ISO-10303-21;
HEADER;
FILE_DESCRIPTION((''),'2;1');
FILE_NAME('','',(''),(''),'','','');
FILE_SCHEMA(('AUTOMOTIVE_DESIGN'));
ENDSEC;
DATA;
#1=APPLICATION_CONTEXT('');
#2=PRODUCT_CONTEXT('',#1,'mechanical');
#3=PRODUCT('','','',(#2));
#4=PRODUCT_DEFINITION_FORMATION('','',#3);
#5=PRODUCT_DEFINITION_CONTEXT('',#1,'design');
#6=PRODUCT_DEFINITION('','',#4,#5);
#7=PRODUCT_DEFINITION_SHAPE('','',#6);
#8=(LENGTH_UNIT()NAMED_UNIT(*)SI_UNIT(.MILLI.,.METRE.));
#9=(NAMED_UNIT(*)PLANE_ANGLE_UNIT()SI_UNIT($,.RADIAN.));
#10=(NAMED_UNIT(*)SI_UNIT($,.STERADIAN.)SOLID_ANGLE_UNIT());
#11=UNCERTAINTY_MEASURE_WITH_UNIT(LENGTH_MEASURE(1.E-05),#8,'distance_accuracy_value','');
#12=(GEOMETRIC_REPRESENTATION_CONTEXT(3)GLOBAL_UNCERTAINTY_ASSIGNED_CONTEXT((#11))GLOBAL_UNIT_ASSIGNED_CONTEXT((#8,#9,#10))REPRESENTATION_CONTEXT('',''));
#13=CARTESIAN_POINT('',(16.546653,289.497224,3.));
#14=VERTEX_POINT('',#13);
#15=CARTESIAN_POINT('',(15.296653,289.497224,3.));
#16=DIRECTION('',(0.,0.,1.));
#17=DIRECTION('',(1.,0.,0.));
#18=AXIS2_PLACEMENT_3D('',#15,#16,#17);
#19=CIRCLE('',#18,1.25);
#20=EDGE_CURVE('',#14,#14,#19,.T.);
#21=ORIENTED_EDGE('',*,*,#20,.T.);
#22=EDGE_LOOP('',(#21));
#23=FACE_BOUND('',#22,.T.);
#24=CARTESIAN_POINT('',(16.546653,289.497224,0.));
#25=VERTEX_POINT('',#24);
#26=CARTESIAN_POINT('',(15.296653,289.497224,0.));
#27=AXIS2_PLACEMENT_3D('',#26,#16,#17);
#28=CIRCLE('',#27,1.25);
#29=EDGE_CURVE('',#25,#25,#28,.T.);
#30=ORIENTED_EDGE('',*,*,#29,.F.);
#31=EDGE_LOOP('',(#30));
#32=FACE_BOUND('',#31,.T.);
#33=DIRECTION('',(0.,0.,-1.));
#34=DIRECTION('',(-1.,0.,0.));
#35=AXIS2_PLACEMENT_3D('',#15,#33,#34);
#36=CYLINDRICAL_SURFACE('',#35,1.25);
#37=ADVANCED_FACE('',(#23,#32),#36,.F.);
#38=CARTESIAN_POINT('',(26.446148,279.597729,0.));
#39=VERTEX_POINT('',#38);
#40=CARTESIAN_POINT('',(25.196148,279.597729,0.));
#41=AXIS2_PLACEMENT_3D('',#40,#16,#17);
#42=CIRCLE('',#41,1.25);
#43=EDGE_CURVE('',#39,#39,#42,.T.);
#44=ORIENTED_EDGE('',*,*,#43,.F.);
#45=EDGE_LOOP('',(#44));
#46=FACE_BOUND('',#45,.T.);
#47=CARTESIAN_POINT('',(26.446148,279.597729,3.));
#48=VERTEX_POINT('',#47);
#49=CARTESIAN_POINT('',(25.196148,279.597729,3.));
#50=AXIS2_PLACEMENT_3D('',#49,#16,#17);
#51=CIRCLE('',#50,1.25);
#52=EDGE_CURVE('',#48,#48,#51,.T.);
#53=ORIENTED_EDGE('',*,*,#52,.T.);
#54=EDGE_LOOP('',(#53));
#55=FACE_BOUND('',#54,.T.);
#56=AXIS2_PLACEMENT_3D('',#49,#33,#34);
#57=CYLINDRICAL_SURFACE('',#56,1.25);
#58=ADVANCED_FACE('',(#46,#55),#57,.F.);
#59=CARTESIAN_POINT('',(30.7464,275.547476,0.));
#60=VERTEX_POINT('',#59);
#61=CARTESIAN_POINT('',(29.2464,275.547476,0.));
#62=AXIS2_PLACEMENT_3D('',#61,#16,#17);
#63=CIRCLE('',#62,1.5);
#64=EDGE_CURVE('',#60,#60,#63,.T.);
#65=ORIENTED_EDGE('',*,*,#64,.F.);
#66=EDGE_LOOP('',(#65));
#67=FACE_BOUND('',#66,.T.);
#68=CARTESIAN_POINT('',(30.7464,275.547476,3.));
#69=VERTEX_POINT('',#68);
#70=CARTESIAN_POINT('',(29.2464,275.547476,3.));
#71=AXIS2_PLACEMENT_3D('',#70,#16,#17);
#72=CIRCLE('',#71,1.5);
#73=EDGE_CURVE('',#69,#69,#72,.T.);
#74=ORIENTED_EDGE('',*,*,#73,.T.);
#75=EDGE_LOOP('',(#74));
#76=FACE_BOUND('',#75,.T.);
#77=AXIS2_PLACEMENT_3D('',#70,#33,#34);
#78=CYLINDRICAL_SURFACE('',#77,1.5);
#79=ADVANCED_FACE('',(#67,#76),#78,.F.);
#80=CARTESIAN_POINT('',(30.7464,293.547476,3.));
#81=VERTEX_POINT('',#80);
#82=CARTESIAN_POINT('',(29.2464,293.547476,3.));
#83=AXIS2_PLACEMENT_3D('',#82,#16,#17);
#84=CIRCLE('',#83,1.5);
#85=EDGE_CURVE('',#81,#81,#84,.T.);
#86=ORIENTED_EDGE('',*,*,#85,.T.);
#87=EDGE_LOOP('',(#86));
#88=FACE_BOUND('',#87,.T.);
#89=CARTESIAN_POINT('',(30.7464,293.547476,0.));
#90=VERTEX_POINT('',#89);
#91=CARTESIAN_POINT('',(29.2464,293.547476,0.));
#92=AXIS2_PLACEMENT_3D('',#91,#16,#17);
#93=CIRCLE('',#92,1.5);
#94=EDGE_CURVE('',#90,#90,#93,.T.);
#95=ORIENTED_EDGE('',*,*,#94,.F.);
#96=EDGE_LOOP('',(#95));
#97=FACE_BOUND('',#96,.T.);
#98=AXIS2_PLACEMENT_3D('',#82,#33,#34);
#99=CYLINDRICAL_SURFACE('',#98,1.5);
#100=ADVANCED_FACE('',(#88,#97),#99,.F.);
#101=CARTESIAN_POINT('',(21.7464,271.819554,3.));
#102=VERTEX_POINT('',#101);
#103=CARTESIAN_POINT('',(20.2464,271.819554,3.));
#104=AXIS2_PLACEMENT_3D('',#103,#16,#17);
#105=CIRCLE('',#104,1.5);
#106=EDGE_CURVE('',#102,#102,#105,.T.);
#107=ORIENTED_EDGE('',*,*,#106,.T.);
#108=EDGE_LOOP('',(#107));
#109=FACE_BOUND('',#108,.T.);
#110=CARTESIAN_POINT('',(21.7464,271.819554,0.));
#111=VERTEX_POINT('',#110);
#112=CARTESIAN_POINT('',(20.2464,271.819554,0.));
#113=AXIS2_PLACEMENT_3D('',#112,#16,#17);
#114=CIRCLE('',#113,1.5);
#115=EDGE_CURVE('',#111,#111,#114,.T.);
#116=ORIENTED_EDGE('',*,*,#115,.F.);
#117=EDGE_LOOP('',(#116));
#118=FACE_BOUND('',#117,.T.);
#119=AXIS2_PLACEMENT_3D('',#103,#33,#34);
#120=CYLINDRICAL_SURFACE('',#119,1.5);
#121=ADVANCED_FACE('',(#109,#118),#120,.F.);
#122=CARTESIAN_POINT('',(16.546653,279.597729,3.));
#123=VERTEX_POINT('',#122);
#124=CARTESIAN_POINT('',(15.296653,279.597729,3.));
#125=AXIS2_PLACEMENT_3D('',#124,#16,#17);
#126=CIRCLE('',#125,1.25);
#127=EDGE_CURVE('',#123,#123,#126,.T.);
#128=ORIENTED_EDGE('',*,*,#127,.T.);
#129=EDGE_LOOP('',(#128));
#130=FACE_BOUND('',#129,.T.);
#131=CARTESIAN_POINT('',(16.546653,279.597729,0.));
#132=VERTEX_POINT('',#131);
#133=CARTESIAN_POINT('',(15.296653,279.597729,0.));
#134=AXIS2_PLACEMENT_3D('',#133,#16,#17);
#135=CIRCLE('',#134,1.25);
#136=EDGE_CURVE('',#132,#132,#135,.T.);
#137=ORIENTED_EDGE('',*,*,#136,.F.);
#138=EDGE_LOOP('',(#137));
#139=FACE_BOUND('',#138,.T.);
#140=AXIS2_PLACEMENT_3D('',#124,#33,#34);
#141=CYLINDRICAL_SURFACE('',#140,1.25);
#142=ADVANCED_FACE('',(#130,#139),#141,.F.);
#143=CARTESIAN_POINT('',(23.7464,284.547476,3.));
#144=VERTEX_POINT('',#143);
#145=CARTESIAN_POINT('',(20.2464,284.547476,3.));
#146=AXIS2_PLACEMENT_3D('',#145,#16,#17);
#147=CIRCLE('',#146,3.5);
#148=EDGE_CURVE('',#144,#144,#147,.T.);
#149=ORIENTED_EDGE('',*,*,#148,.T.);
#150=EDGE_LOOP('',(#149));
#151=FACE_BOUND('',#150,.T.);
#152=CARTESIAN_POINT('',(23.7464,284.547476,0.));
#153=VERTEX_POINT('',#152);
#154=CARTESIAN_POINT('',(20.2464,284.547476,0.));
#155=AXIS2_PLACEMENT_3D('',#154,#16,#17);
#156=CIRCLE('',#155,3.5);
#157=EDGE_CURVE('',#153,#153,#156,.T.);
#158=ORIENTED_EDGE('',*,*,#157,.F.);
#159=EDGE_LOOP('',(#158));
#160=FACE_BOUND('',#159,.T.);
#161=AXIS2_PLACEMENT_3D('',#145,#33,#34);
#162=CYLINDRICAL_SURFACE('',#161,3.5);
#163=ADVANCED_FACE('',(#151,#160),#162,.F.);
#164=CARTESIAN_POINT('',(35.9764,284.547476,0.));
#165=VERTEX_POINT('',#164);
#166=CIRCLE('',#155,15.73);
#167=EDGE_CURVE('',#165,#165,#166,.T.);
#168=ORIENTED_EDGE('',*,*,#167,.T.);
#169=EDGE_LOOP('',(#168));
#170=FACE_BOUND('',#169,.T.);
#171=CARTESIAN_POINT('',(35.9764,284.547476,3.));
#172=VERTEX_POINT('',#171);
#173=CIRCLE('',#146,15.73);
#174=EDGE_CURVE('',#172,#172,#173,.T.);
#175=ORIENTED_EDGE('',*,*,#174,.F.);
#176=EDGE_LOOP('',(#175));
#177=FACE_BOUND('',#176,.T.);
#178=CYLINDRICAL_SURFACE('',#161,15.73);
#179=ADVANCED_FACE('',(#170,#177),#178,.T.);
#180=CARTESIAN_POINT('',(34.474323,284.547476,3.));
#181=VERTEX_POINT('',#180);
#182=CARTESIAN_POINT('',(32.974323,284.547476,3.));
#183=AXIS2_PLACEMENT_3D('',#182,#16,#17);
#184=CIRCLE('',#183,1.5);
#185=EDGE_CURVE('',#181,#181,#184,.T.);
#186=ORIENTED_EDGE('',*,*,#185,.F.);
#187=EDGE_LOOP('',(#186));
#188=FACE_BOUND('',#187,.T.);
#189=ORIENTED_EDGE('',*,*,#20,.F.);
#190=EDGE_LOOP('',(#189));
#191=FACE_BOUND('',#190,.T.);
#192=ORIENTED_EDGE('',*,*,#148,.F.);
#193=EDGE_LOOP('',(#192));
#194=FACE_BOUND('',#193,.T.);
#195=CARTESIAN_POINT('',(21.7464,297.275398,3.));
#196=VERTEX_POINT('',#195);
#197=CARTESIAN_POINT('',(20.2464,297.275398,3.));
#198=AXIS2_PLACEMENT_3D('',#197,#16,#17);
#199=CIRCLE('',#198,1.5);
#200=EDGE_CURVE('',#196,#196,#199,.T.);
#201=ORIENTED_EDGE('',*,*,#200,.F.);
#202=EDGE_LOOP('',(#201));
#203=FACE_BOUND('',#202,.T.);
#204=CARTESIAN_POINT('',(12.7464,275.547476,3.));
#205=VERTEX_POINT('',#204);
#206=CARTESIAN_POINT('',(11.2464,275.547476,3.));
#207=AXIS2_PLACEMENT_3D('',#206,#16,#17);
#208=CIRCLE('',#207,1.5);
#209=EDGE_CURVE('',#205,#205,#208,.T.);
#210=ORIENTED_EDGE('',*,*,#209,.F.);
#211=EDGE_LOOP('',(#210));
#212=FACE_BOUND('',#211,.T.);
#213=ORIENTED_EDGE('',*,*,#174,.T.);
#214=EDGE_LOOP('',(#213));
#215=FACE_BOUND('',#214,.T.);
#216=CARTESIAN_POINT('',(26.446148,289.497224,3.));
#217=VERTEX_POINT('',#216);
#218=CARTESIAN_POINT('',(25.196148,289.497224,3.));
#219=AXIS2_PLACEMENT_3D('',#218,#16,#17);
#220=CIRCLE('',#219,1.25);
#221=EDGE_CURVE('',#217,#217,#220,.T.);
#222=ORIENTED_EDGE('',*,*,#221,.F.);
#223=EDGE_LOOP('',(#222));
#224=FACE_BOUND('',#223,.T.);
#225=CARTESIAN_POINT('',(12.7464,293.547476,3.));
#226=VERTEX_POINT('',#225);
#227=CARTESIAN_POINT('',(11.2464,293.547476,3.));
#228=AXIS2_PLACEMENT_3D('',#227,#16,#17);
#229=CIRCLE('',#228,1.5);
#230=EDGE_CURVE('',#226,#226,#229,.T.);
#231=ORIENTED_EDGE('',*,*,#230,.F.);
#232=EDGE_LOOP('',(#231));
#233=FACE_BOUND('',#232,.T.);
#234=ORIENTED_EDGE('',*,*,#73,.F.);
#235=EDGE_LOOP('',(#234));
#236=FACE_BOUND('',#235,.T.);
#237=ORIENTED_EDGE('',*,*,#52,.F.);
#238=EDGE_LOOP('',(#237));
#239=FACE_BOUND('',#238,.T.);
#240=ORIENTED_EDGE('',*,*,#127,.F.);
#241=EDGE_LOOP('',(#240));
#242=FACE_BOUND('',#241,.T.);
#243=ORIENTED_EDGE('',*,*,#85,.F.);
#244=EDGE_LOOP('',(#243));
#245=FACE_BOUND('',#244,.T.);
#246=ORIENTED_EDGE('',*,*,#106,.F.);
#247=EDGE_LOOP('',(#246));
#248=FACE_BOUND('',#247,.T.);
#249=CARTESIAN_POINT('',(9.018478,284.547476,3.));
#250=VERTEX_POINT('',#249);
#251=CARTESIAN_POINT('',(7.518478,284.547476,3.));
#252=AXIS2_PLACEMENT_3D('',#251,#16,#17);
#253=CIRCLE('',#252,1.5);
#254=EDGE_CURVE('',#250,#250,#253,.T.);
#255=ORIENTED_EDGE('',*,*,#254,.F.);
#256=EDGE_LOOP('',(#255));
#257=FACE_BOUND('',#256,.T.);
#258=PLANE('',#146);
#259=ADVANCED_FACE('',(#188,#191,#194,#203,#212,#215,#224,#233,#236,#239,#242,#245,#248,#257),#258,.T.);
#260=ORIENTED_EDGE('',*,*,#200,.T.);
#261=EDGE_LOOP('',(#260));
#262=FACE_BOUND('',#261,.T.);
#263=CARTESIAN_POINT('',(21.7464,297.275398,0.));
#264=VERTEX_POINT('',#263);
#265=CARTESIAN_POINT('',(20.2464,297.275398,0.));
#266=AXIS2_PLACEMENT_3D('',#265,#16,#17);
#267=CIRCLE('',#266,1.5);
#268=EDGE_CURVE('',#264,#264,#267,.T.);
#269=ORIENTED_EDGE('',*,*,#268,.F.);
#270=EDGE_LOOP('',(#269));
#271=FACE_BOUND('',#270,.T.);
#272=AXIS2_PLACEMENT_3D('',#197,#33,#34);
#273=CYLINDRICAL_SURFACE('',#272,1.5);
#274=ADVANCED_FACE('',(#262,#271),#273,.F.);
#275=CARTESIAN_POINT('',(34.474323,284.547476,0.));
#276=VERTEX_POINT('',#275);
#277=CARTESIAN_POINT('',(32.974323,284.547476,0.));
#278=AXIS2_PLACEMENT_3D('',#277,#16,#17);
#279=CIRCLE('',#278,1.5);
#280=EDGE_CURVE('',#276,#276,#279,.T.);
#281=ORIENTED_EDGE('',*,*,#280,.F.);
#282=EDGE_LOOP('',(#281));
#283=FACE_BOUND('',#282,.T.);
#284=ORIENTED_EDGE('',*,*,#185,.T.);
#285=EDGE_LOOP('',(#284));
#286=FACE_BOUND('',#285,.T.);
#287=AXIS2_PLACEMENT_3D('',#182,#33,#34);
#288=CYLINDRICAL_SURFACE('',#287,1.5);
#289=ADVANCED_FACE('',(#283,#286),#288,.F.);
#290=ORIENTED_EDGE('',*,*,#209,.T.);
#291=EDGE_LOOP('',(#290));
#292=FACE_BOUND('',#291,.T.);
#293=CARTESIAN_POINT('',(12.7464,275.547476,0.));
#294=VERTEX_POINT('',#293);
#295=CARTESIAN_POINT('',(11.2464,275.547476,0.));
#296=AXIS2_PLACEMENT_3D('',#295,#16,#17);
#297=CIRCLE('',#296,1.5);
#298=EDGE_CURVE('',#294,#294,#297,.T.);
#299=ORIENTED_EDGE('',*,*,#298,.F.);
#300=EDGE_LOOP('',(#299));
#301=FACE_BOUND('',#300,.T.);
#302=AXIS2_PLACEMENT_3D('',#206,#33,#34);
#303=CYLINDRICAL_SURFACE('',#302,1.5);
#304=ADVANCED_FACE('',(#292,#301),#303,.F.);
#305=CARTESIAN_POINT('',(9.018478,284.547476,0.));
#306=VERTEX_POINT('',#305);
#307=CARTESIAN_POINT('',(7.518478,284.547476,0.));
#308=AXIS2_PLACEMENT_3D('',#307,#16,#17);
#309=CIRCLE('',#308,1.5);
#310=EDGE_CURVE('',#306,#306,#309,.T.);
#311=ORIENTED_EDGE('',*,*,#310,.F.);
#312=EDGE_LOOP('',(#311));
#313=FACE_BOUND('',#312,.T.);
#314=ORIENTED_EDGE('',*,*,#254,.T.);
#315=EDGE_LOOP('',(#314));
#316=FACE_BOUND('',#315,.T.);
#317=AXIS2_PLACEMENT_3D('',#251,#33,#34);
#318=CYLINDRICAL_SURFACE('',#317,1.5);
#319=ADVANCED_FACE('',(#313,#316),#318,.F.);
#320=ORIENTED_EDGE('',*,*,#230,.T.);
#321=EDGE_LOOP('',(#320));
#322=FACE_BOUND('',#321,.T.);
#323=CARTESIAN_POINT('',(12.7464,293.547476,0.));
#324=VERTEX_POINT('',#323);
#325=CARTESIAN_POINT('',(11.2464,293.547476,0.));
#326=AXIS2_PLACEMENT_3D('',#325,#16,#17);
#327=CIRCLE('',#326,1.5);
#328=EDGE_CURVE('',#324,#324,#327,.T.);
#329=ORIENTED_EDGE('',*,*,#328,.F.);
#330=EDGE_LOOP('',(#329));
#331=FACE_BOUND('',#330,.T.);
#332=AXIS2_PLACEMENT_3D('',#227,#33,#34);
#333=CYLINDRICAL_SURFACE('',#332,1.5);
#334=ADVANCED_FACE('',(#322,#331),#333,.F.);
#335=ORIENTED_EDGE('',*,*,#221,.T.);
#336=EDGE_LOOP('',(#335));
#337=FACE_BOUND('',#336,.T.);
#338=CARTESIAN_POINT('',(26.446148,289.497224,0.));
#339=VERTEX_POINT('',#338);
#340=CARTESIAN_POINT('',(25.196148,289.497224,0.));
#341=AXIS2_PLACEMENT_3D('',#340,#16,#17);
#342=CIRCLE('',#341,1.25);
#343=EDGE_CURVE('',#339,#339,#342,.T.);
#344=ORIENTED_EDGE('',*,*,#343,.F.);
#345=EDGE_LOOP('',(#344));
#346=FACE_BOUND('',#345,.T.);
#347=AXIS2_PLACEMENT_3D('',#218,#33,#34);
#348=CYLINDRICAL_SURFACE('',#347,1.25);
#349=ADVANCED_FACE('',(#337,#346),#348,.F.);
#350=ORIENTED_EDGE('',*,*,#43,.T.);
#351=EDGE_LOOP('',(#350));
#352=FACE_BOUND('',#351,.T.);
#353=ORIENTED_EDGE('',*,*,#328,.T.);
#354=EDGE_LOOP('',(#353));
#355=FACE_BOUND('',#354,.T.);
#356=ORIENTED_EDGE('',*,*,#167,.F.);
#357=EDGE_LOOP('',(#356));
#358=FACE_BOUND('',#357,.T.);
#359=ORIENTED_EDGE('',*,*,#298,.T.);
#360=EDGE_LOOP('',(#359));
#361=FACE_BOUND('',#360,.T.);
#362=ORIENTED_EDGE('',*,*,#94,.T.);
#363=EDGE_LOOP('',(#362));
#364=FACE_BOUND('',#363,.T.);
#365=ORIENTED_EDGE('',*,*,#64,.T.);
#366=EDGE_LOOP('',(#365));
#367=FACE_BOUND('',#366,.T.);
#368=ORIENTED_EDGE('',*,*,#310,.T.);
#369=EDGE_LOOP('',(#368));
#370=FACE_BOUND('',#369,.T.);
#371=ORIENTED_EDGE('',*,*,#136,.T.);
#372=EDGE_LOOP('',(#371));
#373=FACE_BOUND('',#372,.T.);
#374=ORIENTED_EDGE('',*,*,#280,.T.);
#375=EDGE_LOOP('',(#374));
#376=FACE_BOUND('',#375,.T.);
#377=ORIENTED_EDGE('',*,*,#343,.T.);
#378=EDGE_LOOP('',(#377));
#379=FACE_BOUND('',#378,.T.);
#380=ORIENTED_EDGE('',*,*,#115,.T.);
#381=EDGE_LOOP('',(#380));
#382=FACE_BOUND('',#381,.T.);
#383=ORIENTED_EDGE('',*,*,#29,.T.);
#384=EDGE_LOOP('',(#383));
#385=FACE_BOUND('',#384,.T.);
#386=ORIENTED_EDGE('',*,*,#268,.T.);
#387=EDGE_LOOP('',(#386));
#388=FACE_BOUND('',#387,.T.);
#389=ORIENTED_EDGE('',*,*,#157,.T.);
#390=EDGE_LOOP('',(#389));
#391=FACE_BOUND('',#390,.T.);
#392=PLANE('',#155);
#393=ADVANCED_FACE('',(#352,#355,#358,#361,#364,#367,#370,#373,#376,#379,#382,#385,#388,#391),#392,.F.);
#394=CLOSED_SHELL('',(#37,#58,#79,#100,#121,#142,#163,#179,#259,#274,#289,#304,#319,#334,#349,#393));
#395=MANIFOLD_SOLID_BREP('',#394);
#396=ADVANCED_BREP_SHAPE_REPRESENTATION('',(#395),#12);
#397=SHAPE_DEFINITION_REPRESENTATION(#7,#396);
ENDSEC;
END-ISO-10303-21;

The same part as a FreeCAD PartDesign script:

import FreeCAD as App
import Part
import Sketcher
Q = App.Units.Quantity

doc = App.newDocument("Part")
body = doc.addObject("PartDesign::Body", "Body")

sketch1 = body.newObject("Sketcher::SketchObject", "Sketch")
sketch1.AttachmentSupport = (doc.getObject("XY_Plane"), [""])
sketch1.MapMode = "FlatFace"
sketch1.addGeometry([
    Part.Circle(App.Vector(20.2, 284.5, 0), App.Vector(0, 0, 1), 15.7),
    Part.Circle(App.Vector(11.2, 275.5, 0), App.Vector(0, 0, 1), 1.5),
    Part.Circle(App.Vector(15.3, 279.6, 0), App.Vector(0, 0, 1), 1.2),
    Part.Circle(App.Vector(20.2, 271.8, 0), App.Vector(0, 0, 1), 1.5),
    Part.Circle(App.Vector(29.2, 275.5, 0), App.Vector(0, 0, 1), 1.5),
    Part.Circle(App.Vector(25.2, 279.6, 0), App.Vector(0, 0, 1), 1.2),
    Part.Circle(App.Vector(7.5, 284.5, 0), App.Vector(0, 0, 1), 1.5),
    Part.Circle(App.Vector(15.3, 289.5, 0), App.Vector(0, 0, 1), 1.2),
    Part.Circle(App.Vector(11.2, 293.5, 0), App.Vector(0, 0, 1), 1.5),
    Part.Circle(App.Vector(20.2, 284.5, 0), App.Vector(0, 0, 1), 3.5),
    Part.Circle(App.Vector(25.2, 289.5, 0), App.Vector(0, 0, 1), 1.2),
    Part.Circle(App.Vector(33, 284.5, 0), App.Vector(0, 0, 1), 1.5),
    Part.Circle(App.Vector(20.2, 297.3, 0), App.Vector(0, 0, 1), 1.5),
    Part.Circle(App.Vector(29.2, 293.5, 0), App.Vector(0, 0, 1), 1.5),
], False)
sketch1.addConstraint([
    Sketcher.Constraint("Coincident", 9, 3, 0, 3),
    Sketcher.Constraint("Equal", 1, 3),
    Sketcher.Constraint("Equal", 3, 4),
    Sketcher.Constraint("Equal", 2, 5),
    Sketcher.Constraint("Equal", 4, 6),
    Sketcher.Constraint("Equal", 5, 7),
    Sketcher.Constraint("Equal", 6, 8),
    Sketcher.Constraint("Equal", 7, 10),
    Sketcher.Constraint("Equal", 8, 11),
    Sketcher.Constraint("Equal", 11, 12),
    Sketcher.Constraint("Equal", 12, 13),
    Sketcher.Constraint("Horizontal", 1, 3, 4, 3),
    Sketcher.Constraint("Horizontal", 2, 3, 5, 3),
    Sketcher.Constraint("Horizontal", 0, 3, 6, 3),
    Sketcher.Constraint("Horizontal", 7, 3, 10, 3),
    Sketcher.Constraint("Horizontal", 9, 3, 11, 3),
    Sketcher.Constraint("Horizontal", 8, 3, 13, 3),
    Sketcher.Constraint("Vertical", 0, 3, 3, 3),
    Sketcher.Constraint("Vertical", 2, 3, 7, 3),
    Sketcher.Constraint("Vertical", 1, 3, 8, 3),
    Sketcher.Constraint("Vertical", 5, 3, 10, 3),
    Sketcher.Constraint("Vertical", 9, 3, 12, 3),
    Sketcher.Constraint("Vertical", 4, 3, 13, 3),
    Sketcher.Constraint("Diameter", 1, Q("3 mm")),
    Sketcher.Constraint("Diameter", 9, Q("7 mm")),
    Sketcher.Constraint("Diameter", 2, Q("2.5 mm")),
    Sketcher.Constraint("Diameter", 0, Q("31.46 mm")),
    Sketcher.Constraint("DistanceX", 1, 3, 0, 3, Q("9 mm")),
    Sketcher.Constraint("DistanceY", 1, 3, 0, 3, Q("9 mm")),
    Sketcher.Constraint("DistanceX", 3, 3, 4, 3, Q("9 mm")),
    Sketcher.Constraint("DistanceY", 6, 3, 8, 3, Q("9 mm")),
    Sketcher.Constraint("DistanceX", -1, 1, 0, 3, Q("20.2464 mm")),
    Sketcher.Constraint("DistanceY", -1, 1, 12, 3, Q("297.275398 mm")),
    Sketcher.Constraint("DistanceY", -1, 1, 2, 3, Q("279.597729 mm")),
    Sketcher.Constraint("DistanceX", -1, 1, 6, 3, Q("7.518478 mm")),
    Sketcher.Constraint("DistanceX", 6, 3, 5, 3, Q("17.67767 mm")),
    Sketcher.Constraint("DistanceY", -1, 1, 0, 3, Q("284.547476 mm")),
    Sketcher.Constraint("DistanceX", -1, 1, 2, 3, Q("15.296653 mm")),
    Sketcher.Constraint("DistanceY", -1, 1, 3, 3, Q("271.819554 mm")),
    Sketcher.Constraint("DistanceY", -1, 1, 7, 3, Q("289.497224 mm")),
    Sketcher.Constraint("DistanceX", -1, 1, 11, 3, Q("32.974323 mm")),
])
pad1 = body.newObject("PartDesign::Pad", "Pad")
pad1.Profile = sketch1
pad1.Length = 3

doc.recompute()
